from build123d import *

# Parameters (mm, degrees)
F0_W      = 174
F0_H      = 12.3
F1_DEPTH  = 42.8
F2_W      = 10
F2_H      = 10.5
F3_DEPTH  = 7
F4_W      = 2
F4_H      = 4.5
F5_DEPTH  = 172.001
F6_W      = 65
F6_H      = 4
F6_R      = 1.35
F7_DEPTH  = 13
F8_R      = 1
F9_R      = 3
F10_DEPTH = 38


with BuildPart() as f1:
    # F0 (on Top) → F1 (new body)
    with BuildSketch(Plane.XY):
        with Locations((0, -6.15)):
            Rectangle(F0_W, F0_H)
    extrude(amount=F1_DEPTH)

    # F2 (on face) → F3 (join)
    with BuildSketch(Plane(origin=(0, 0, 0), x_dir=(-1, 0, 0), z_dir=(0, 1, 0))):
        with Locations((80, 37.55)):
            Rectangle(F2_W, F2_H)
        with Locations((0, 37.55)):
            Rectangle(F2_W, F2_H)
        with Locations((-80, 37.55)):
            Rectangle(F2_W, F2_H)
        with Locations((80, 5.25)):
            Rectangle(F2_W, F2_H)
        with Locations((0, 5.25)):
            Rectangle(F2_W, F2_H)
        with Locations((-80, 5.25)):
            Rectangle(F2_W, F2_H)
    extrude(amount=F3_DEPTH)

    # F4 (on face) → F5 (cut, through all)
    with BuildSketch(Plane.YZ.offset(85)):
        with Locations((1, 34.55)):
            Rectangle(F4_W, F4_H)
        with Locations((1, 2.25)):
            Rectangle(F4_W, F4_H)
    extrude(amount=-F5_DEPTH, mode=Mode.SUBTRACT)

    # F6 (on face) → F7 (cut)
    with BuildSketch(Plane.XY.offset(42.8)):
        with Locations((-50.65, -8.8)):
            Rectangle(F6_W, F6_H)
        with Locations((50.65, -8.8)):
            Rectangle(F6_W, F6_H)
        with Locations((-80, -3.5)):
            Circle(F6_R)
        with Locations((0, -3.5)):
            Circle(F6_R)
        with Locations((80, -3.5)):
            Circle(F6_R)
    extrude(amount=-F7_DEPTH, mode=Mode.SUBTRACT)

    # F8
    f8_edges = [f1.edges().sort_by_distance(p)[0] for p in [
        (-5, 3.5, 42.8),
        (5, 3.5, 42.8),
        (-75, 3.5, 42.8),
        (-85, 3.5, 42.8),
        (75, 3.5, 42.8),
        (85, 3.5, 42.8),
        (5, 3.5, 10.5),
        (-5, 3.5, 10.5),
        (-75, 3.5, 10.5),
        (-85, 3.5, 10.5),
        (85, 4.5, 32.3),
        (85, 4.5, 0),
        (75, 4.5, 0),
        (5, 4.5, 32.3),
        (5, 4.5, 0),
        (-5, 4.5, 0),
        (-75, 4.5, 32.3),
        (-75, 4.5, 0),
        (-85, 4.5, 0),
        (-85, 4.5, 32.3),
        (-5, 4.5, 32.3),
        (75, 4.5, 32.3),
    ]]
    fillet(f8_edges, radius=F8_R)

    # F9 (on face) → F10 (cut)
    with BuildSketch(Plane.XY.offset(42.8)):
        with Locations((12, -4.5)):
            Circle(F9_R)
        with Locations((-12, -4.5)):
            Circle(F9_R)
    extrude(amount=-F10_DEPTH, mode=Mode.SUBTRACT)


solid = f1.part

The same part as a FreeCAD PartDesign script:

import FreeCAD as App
import Part
import Sketcher


def edges_at(feature, points):
    """Names of the edges that pass closest to the given points."""
    edges = feature.Shape.Edges
    near = lambda p: min(range(len(edges)), key=lambda i: edges[i].distToShape(Part.Vertex(*p))[0])
    return sorted({f"Edge{near(p) + 1}" for p in points})

doc = App.newDocument("Part")
body = doc.addObject("PartDesign::Body", "Body")

# Sketch on XY plane
sketch1 = body.newObject("Sketcher::SketchObject", "Sketch")
sketch1.AttachmentSupport = (doc.getObject("XY_Plane"), [""])
sketch1.MapMode = "FlatFace"
sketch1.addGeometry([
    Part.LineSegment(App.Vector(-87, 0, 0), App.Vector(-87, -12, 0)),
    Part.LineSegment(App.Vector(-87, -12, 0), App.Vector(87, -12, 0)),
    Part.LineSegment(App.Vector(87, -12, 0), App.Vector(87, 0, 0)),
    Part.LineSegment(App.Vector(87, 0, 0), App.Vector(-87, 0, 0)),
], False)
sketch1.addConstraint([
    Sketcher.Constraint("Coincident", 0, 2, 1, 1),
    Sketcher.Constraint("Coincident", 1, 2, 2, 1),
    Sketcher.Constraint("Coincident", 2, 2, 3, 1),
    Sketcher.Constraint("Coincident", 3, 2, 0, 1),
    Sketcher.Constraint("Vertical", 0),
    Sketcher.Constraint("Horizontal", 1),
    Sketcher.Constraint("Vertical", 2),
    Sketcher.Constraint("Horizontal", 3),
    Sketcher.Constraint("Symmetric", 2, 2, 3, 2, -1, 1),
    Sketcher.Constraint("DistanceX", 1, 1, 1, 2, 174.0),
    Sketcher.Constraint("DistanceY", 0, 2, 0, 1, 12.3),
])
pad1 = body.newObject("PartDesign::Pad", "Pad")
pad1.Profile = sketch1
pad1.Length = 42.8

# Sketch on XZ plane
sketch2 = body.newObject("Sketcher::SketchObject", "Sketch001")
sketch2.AttachmentSupport = (doc.getObject("XZ_Plane"), [""])
sketch2.MapMode = "FlatFace"
sketch2.addGeometry([
    Part.LineSegment(App.Vector(-75, 43, 0), App.Vector(-75, 32, 0)),  # 0
    Part.LineSegment(App.Vector(-75, 32, 0), App.Vector(-85, 32, 0)),  # 1
    Part.LineSegment(App.Vector(-85, 32, 0), App.Vector(-85, 43, 0)),  # 2
    Part.LineSegment(App.Vector(-85, 43, 0), App.Vector(-75, 43, 0)),  # 3
    Part.LineSegment(App.Vector(5, 43, 0), App.Vector(5, 32, 0)),  # 4
    Part.LineSegment(App.Vector(5, 32, 0), App.Vector(-5, 32, 0)),  # 5
    Part.LineSegment(App.Vector(-5, 32, 0), App.Vector(-5, 43, 0)),  # 6
    Part.LineSegment(App.Vector(-5, 43, 0), App.Vector(5, 43, 0)),  # 7
    Part.LineSegment(App.Vector(85, 43, 0), App.Vector(85, 32, 0)),  # 8
    Part.LineSegment(App.Vector(85, 32, 0), App.Vector(75, 32, 0)),  # 9
    Part.LineSegment(App.Vector(75, 32, 0), App.Vector(75, 43, 0)),  # 10
    Part.LineSegment(App.Vector(75, 43, 0), App.Vector(85, 43, 0)),  # 11
    Part.LineSegment(App.Vector(-75, 10, 0), App.Vector(-75, 0, 0)),  # 12
    Part.LineSegment(App.Vector(-75, 0, 0), App.Vector(-85, 0, 0)),  # 13
    Part.LineSegment(App.Vector(-85, 0, 0), App.Vector(-85, 10, 0)),  # 14
    Part.LineSegment(App.Vector(-85, 10, 0), App.Vector(-75, 10, 0)),  # 15
    Part.LineSegment(App.Vector(5, 10, 0), App.Vector(5, 0, 0)),  # 16
    Part.LineSegment(App.Vector(5, 0, 0), App.Vector(-5, 0, 0)),  # 17
    Part.LineSegment(App.Vector(-5, 0, 0), App.Vector(-5, 10, 0)),  # 18
    Part.LineSegment(App.Vector(-5, 10, 0), App.Vector(5, 10, 0)),  # 19
    Part.LineSegment(App.Vector(85, 10, 0), App.Vector(85, 0, 0)),  # 20
    Part.LineSegment(App.Vector(85, 0, 0), App.Vector(75, 0, 0)),  # 21
    Part.LineSegment(App.Vector(75, 0, 0), App.Vector(75, 10, 0)),  # 22
    Part.LineSegment(App.Vector(75, 10, 0), App.Vector(85, 10, 0)),  # 23
], False)
sketch2.addConstraint([
    Sketcher.Constraint("Coincident", 0, 2, 1, 1),
    Sketcher.Constraint("Coincident", 1, 2, 2, 1),
    Sketcher.Constraint("Coincident", 2, 2, 3, 1),
    Sketcher.Constraint("Coincident", 3, 2, 0, 1),
    Sketcher.Constraint("Coincident", 4, 2, 5, 1),
    Sketcher.Constraint("Coincident", 5, 2, 6, 1),
    Sketcher.Constraint("Coincident", 6, 2, 7, 1),
    Sketcher.Constraint("Coincident", 7, 2, 4, 1),
    Sketcher.Constraint("Coincident", 8, 2, 9, 1),
    Sketcher.Constraint("Coincident", 9, 2, 10, 1),
    Sketcher.Constraint("Coincident", 10, 2, 11, 1),
    Sketcher.Constraint("Coincident", 11, 2, 8, 1),
    Sketcher.Constraint("Coincident", 12, 2, 13, 1),
    Sketcher.Constraint("Coincident", 13, 2, 14, 1),
    Sketcher.Constraint("Coincident", 14, 2, 15, 1),
    Sketcher.Constraint("Coincident", 15, 2, 12, 1),
    Sketcher.Constraint("Coincident", 16, 2, 17, 1),
    Sketcher.Constraint("Coincident", 17, 2, 18, 1),
    Sketcher.Constraint("Coincident", 18, 2, 19, 1),
    Sketcher.Constraint("Coincident", 19, 2, 16, 1),
    Sketcher.Constraint("Coincident", 20, 2, 21, 1),
    Sketcher.Constraint("Coincident", 21, 2, 22, 1),
    Sketcher.Constraint("Coincident", 22, 2, 23, 1),
    Sketcher.Constraint("Coincident", 23, 2, 20, 1),
    Sketcher.Constraint("Vertical", 0),
    Sketcher.Constraint("Horizontal", 1),
    Sketcher.Constraint("Vertical", 2),
    Sketcher.Constraint("Horizontal", 3),
    Sketcher.Constraint("Vertical", 4),
    Sketcher.Constraint("Horizontal", 5),
    Sketcher.Constraint("Vertical", 6),
    Sketcher.Constraint("Horizontal", 7),
    Sketcher.Constraint("Vertical", 8),
    Sketcher.Constraint("Horizontal", 9),
    Sketcher.Constraint("Vertical", 10),
    Sketcher.Constraint("Horizontal", 11),
    Sketcher.Constraint("Vertical", 12),
    Sketcher.Constraint("Horizontal", 13),
    Sketcher.Constraint("Vertical", 14),
    Sketcher.Constraint("Horizontal", 15),
    Sketcher.Constraint("Vertical", 16),
    Sketcher.Constraint("Horizontal", 17),
    Sketcher.Constraint("Vertical", 18),
    Sketcher.Constraint("Horizontal", 19),
    Sketcher.Constraint("Vertical", 20),
    Sketcher.Constraint("Horizontal", 21),
    Sketcher.Constraint("Vertical", 22),
    Sketcher.Constraint("Horizontal", 23),
    Sketcher.Constraint("Symmetric", 16, 2, 17, 2, -1, 1),
    Sketcher.Constraint("Symmetric", 13, 2, 20, 2, -1, 1),
    Sketcher.Constraint("Symmetric", 1, 2, 8, 2, -2),
    Sketcher.Constraint("Symmetric", 3, 2, 10, 2, -2),
    Sketcher.Constraint("Symmetric", 12, 2, 21, 2, -2),
    Sketcher.Constraint("Horizontal", 1, 2, 4, 2),
    Sketcher.Constraint("Horizontal", 3, 2, 6, 2),
    Sketcher.Constraint("Horizontal", 15, 2, 18, 2),
    Sketcher.Constraint("Horizontal", 19, 2, 22, 2),
    Sketcher.Constraint("Vertical", 3, 2, 12, 2),
    Sketcher.Constraint("Vertical", 2, 2, 13, 2),
    Sketcher.Constraint("Vertical", 7, 2, 16, 2),
    Sketcher.Constraint("Vertical", 6, 2, 17, 2),
    Sketcher.Constraint("Equal", 3, 5),
    Sketcher.Constraint("Equal", 10, 12),
    Sketcher.Constraint("DistanceX", 1, 2, 1, 1, 10.0),
    Sketcher.Constraint("DistanceY", 0, 2, 0, 1, 10.5),
    Sketcher.Constraint("DistanceX", 0, 2, -1, 1, 75.0),
    Sketcher.Constraint("DistanceY", -1, 1, 0, 2, 32.3),
])
pad2 = body.newObject("PartDesign::Pad", "Pad001")
pad2.Profile = sketch2
pad2.Length = 7
pad2.Reversed = True

# Sketch on YZ plane
sketch3 = body.newObject("Sketcher::SketchObject", "Sketch002")
sketch3.AttachmentSupport = (doc.getObject("YZ_Plane"), [""])
sketch3.MapMode = "FlatFace"
sketch3.AttachmentOffset = App.Placement(App.Vector(0, 0, 85), App.Rotation())
sketch3.addGeometry([
    Part.LineSegment(App.Vector(0, 36.8, 0), App.Vector(0, 32.3, 0)),  # 0
    Part.LineSegment(App.Vector(0, 32.3, 0), App.Vector(2, 32.3, 0)),  # 1
    Part.LineSegment(App.Vector(2, 32.3, 0), App.Vector(2, 36.8, 0)),  # 2
    Part.LineSegment(App.Vector(2, 36.8, 0), App.Vector(0, 36.8, 0)),  # 3
    Part.LineSegment(App.Vector(0, 4.5, 0), App.Vector(0, 0, 0)),  # 4
    Part.LineSegment(App.Vector(0, 0, 0), App.Vector(2, 0, 0)),  # 5
    Part.LineSegment(App.Vector(2, 0, 0), App.Vector(2, 4.5, 0)),  # 6
    Part.LineSegment(App.Vector(2, 4.5, 0), App.Vector(0, 4.5, 0)),  # 7
], False)
sketch3.addConstraint([
    Sketcher.Constraint("Coincident", 0, 2, 1, 1),
    Sketcher.Constraint("Coincident", 1, 2, 2, 1),
    Sketcher.Constraint("Coincident", 2, 2, 3, 1),
    Sketcher.Constraint("Coincident", 3, 2, 0, 1),
    Sketcher.Constraint("Coincident", 4, 2, 5, 1),
    Sketcher.Constraint("Coincident", 5, 2, 6, 1),
    Sketcher.Constraint("Coincident", 6, 2, 7, 1),
    Sketcher.Constraint("Coincident", 7, 2, 4, 1),
    Sketcher.Constraint("Vertical", 0),
    Sketcher.Constraint("Horizontal", 1),
    Sketcher.Constraint("Vertical", 2),
    Sketcher.Constraint("Horizontal", 3),
    Sketcher.Constraint("Vertical", 4),
    Sketcher.Constraint("Horizontal", 5),
    Sketcher.Constraint("Vertical", 6),
    Sketcher.Constraint("Horizontal", 7),
    Sketcher.Constraint("Coincident", 4, 2, -1, 1),
    Sketcher.Constraint("PointOnObject", 0, 2, -2),
    Sketcher.Constraint("Vertical", 2, 2, 5, 2),
    Sketcher.Constraint("Equal", 2, 4),
    Sketcher.Constraint("DistanceX", 1, 1, 1, 2, 2.0),
    Sketcher.Constraint("DistanceY", 0, 2, 0, 1, 4.5),
    Sketcher.Constraint("DistanceY", -1, 1, 0, 2, 32.3),
])
pocket1 = body.newObject("PartDesign::Pocket", "Pocket")
pocket1.Profile = sketch3
pocket1.Type = "ThroughAll"

# Sketch on XY plane
sketch4 = body.newObject("Sketcher::SketchObject", "Sketch003")
sketch4.AttachmentSupport = (doc.getObject("XY_Plane"), [""])
sketch4.MapMode = "FlatFace"
sketch4.AttachmentOffset = App.Placement(App.Vector(0, 0, 42.8), App.Rotation())
sketch4.addGeometry([
    Part.LineSegment(App.Vector(-83.2, -6.8, 0), App.Vector(-83.2, -10.8, 0)),  # 0
    Part.LineSegment(App.Vector(-83.2, -10.8, 0), App.Vector(-18.1, -10.8, 0)),  # 1
    Part.LineSegment(App.Vector(-18.1, -10.8, 0), App.Vector(-18.1, -6.8, 0)),  # 2
    Part.LineSegment(App.Vector(-18.1, -6.8, 0), App.Vector(-83.2, -6.8, 0)),  # 3
    Part.LineSegment(App.Vector(18.1, -6.8, 0), App.Vector(18.1, -10.8, 0)),  # 4
    Part.LineSegment(App.Vector(18.1, -10.8, 0), App.Vector(83.2, -10.8, 0)),  # 5
    Part.LineSegment(App.Vector(83.2, -10.8, 0), App.Vector(83.2, -6.8, 0)),  # 6
    Part.LineSegment(App.Vector(83.2, -6.8, 0), App.Vector(18.1, -6.8, 0)),  # 7
    Part.Circle(App.Vector(-80, -3.5, 0), App.Vector(0, 0, 1), 1.4),  # 8
    Part.Circle(App.Vector(0, -3.5, 0), App.Vector(0, 0, 1), 1.4),  # 9
    Part.Circle(App.Vector(80, -3.5, 0), App.Vector(0, 0, 1), 1.4),  # 10
], False)
sketch4.addConstraint([
    Sketcher.Constraint("Coincident", 0, 2, 1, 1),
    Sketcher.Constraint("Coincident", 1, 2, 2, 1),
    Sketcher.Constraint("Coincident", 2, 2, 3, 1),
    Sketcher.Constraint("Coincident", 3, 2, 0, 1),
    Sketcher.Constraint("Coincident", 4, 2, 5, 1),
    Sketcher.Constraint("Coincident", 5, 2, 6, 1),
    Sketcher.Constraint("Coincident", 6, 2, 7, 1),
    Sketcher.Constraint("Coincident", 7, 2, 4, 1),
    Sketcher.Constraint("Vertical", 0),
    Sketcher.Constraint("Horizontal", 1),
    Sketcher.Constraint("Vertical", 2),
    Sketcher.Constraint("Horizontal", 3),
    Sketcher.Constraint("Vertical", 4),
    Sketcher.Constraint("Horizontal", 5),
    Sketcher.Constraint("Vertical", 6),
    Sketcher.Constraint("Horizontal", 7),
    Sketcher.Constraint("Equal", 8, 9),
    Sketcher.Constraint("Equal", 9, 10),
    Sketcher.Constraint("Symmetric", 8, 3, 10, 3, -2),
    Sketcher.Constraint("Symmetric", 1, 2, 4, 2, -2),
    Sketcher.Constraint("Symmetric", 3, 2, 6, 2, -2),
    Sketcher.Constraint("PointOnObject", 9, 3, -2),
    Sketcher.Constraint("Horizontal", 8, 3, 9, 3),
    Sketcher.Constraint("Diameter", 8, 2.7),
    Sketcher.Constraint("DistanceX", 1, 1, 1, 2, 65.0),
    Sketcher.Constraint("DistanceY", 0, 2, 0, 1, 4.0),
    Sketcher.Constraint("DistanceX", 8, 3, -1, 1, 80.0),
    Sketcher.Constraint("DistanceY", 8, 3, -1, 1, 3.5),
    Sketcher.Constraint("DistanceY", 0, 2, -1, 1, 10.8),
    Sketcher.Constraint("DistanceX", 1, 2, 4, 2, 36.3),
])
pocket2 = body.newObject("PartDesign::Pocket", "Pocket001")
pocket2.Profile = sketch4
pocket2.Length = 13
doc.recompute()

fillet = body.newObject("PartDesign::Fillet", "Fillet")
fillet.Base = (pocket2, edges_at(pocket2, [
    (-5, 3.5, 42.8),
    (5, 3.5, 42.8),
    (-75, 3.5, 42.8),
    (-85, 3.5, 42.8),
    (75, 3.5, 42.8),
    (85, 3.5, 42.8),
    (5, 3.5, 10.5),
    (-5, 3.5, 10.5),
    (-75, 3.5, 10.5),
    (-85, 3.5, 10.5),
    (85, 4.5, 32.3),
    (85, 4.5, 0),
    (75, 4.5, 0),
    (5, 4.5, 32.3),
    (5, 4.5, 0),
    (-5, 4.5, 0),
    (-75, 4.5, 32.3),
    (-75, 4.5, 0),
    (-85, 4.5, 0),
    (-85, 4.5, 32.3),
    (-5, 4.5, 32.3),
    (75, 4.5, 32.3),
]))
fillet.Radius = 1

# Sketch on XY plane
sketch5 = body.newObject("Sketcher::SketchObject", "Sketch004")
sketch5.AttachmentSupport = (doc.getObject("XY_Plane"), [""])
sketch5.MapMode = "FlatFace"
sketch5.AttachmentOffset = App.Placement(App.Vector(0, 0, 42.8), App.Rotation())
sketch5.addGeometry([
    Part.Circle(App.Vector(12, -4.5, 0), App.Vector(0, 0, 1), 3),
    Part.Circle(App.Vector(-12, -4.5, 0), App.Vector(0, 0, 1), 3),
], False)
sketch5.addConstraint([
    Sketcher.Constraint("Equal", 0, 1),
    Sketcher.Constraint("Symmetric", 0, 3, 1, 3, -2),
    Sketcher.Constraint("Diameter", 0, 6.0),
    Sketcher.Constraint("DistanceX", -1, 1, 0, 3, 12.0),
    Sketcher.Constraint("DistanceY", 0, 3, -1, 1, 4.5),
])
pocket3 = body.newObject("PartDesign::Pocket", "Pocket002")
pocket3.Profile = sketch5
pocket3.Length = 38

doc.recompute()
